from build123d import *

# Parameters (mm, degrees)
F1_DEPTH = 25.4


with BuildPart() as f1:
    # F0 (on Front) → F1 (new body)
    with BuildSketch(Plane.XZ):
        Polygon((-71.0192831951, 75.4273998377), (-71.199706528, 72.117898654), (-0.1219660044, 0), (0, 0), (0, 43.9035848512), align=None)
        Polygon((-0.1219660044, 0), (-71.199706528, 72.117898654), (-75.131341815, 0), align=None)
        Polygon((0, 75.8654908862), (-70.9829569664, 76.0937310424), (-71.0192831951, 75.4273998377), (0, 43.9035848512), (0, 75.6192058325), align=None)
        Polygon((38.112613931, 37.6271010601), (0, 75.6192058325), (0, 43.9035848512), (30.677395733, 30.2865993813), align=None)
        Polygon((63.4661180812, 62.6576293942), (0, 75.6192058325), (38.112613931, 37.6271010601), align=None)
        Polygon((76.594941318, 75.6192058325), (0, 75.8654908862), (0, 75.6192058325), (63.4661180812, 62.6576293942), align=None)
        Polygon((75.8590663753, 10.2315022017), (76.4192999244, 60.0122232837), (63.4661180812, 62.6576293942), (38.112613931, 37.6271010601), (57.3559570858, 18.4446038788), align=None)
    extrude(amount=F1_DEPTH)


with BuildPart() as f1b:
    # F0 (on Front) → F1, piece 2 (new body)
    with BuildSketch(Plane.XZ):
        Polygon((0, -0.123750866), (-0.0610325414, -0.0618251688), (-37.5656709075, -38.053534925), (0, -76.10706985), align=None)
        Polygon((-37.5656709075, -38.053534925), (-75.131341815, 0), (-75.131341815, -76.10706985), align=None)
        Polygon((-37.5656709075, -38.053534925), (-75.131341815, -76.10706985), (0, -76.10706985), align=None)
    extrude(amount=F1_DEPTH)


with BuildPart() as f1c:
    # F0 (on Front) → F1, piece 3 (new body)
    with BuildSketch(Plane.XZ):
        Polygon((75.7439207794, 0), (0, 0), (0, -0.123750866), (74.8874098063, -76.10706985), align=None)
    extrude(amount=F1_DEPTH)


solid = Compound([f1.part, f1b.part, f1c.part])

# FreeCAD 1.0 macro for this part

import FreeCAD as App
import Part
import Sketcher

V = App.Vector
Q = App.Units.Quantity


def add_polygon(sketch, points):
    """Adds a closed chain of lines whose ends are joined by coincident constraints."""
    first, n = sketch.GeometryCount, len(points)
    for a, b in zip(points, points[1:] + points[:1]):
        sketch.addGeometry(Part.LineSegment(App.Vector(*a, 0), App.Vector(*b, 0)), False)
    for i in range(n):
        sketch.addConstraint(Sketcher.Constraint("Coincident", first + i, 2, first + (i + 1) % n, 1))

doc = App.newDocument("Part")
body = doc.addObject("PartDesign::Body", "Body")

sketch1 = body.newObject("Sketcher::SketchObject", "Sketch")
sketch1.AttachmentSupport = (doc.getObject("XZ_Plane"), [""])
sketch1.MapMode = "FlatFace"
add_polygon(sketch1, [(-71.019283, 75.4274), (-71.199707, 72.117899), (-75.131342, 0), (0, 0), (0, 43.903585), (30.677396, 30.286599), (38.112614, 37.627101), (57.355957, 18.444604), (75.859066, 10.231502), (76.4193, 60.012223), (63.466118, 62.657629), (76.594941, 75.619206), (-70.982957, 76.093731)])
sketch1.addConstraint(Sketcher.Constraint("Horizontal", 2))
sketch1.addConstraint(Sketcher.Constraint("Vertical", 3))
sketch1.addConstraint(Sketcher.Constraint("Coincident", 2, 2, -1, 1))
sketch1.addConstraint(Sketcher.Constraint("Parallel", 0, 1))
sketch1.addConstraint(Sketcher.Constraint("Parallel", 4, 7))
sketch1.addConstraint(Sketcher.Constraint("Parallel", 5, 10))
sketch1.addConstraint(Sketcher.Constraint("Parallel", 1, 12))
sketch1.addConstraint(Sketcher.Constraint("DistanceY", 4, 2, 8, 2, Q("1.1703002 in")))
sketch1.addConstraint(Sketcher.Constraint("DistanceX", 2, 1, 2, 2, 75.131342))
sketch1.addConstraint(Sketcher.Constraint("DistanceY", -1, 1, 0, 2, 72.117899))
sketch1.addConstraint(Sketcher.Constraint("DistanceY", -1, 1, 4, 2, 30.286599))
sketch1.addConstraint(Sketcher.Constraint("DistanceY", -1, 1, 5, 2, 37.627101))
sketch1.addConstraint(Sketcher.Constraint("DistanceX", -1, 1, 8, 2, 76.4193))
sketch1.addConstraint(Sketcher.Constraint("DistanceY", -1, 1, 12, 2, 75.4274))
sketch1.addConstraint(Sketcher.Constraint("DistanceX", 1, 2, 6, 2, 132.487299))
sketch1.addConstraint(Sketcher.Constraint("DistanceY", 7, 2, 6, 2, 8.213102))
sketch1.addConstraint(Sketcher.Constraint("DistanceY", 7, 2, 5, 2, 27.395599))
sketch1.addConstraint(Sketcher.Constraint("DistanceY", 6, 2, 10, 2, 57.174602))
sketch1.addConstraint(Sketcher.Constraint("Distance", 1, 72.224989))
sketch1.addConstraint(Sketcher.Constraint("Distance", 11, 147.578661))
sketch1.addConstraint(Sketcher.Constraint("Distance", 12, 0.667321))
sketch1.addConstraint(Sketcher.Constraint("DistanceY", 3, 1, 3, 2, 43.903585))
sketch1.addConstraint(Sketcher.Constraint("DistanceX", -1, 1, 9, 2, 63.466118))
sketch1.addConstraint(Sketcher.Constraint("DistanceY", -1, 1, 9, 2, 62.657629))
sketch1.addConstraint(Sketcher.Constraint("DistanceX", 0, 2, 5, 2, 109.31232))
pad1 = body.newObject("PartDesign::Pad", "Pad")
pad1.Profile = sketch1
pad1.Length = Q("1 in")
body2 = doc.addObject("PartDesign::Body", "Body001")

sketch2 = body2.newObject("Sketcher::SketchObject", "Sketch001")
sketch2.AttachmentSupport = (doc.getObject("XZ_Plane001"), [""])
sketch2.MapMode = "FlatFace"
add_polygon(sketch2, [(0, -0.123751), (-0.061033, -0.061825), (-37.565671, -38.053535), (-75.131342, 0), (-75.131342, -76.10707), (0, -76.10707)])
sketch2.addConstraint(Sketcher.Constraint("Vertical", 3))
sketch2.addConstraint(Sketcher.Constraint("Horizontal", 4))
sketch2.addConstraint(Sketcher.Constraint("Vertical", 5))
sketch2.addConstraint(Sketcher.Constraint("PointOnObject", 2, 2, -1))
sketch2.addConstraint(Sketcher.Constraint("PointOnObject", 4, 2, -2))
sketch2.addConstraint(Sketcher.Constraint("DistanceX", 4, 1, 4, 2, 75.131342))
sketch2.addConstraint(Sketcher.Constraint("DistanceY", 3, 2, 3, 1, 76.10707))
sketch2.addConstraint(Sketcher.Constraint("DistanceY", 5, 1, 5, 2, 75.983319))
sketch2.addConstraint(Sketcher.Constraint("Distance", 1, 53.385091))
sketch2.addConstraint(Sketcher.Constraint("DistanceX", 1, 2, -1, 1, 37.565671))
sketch2.addConstraint(Sketcher.Constraint("DistanceX", 1, 2, 0, 2, 37.504638))
sketch2.addConstraint(Sketcher.Constraint("Distance", 0, 0.086947))
pad2 = body2.newObject("PartDesign::Pad", "Pad001")
pad2.Profile = sketch2
pad2.Length = Q("1 in")
body3 = doc.addObject("PartDesign::Body", "Body002")

sketch3 = body3.newObject("Sketcher::SketchObject", "Sketch002")
sketch3.AttachmentSupport = (doc.getObject("XZ_Plane002"), [""])
sketch3.MapMode = "FlatFace"
add_polygon(sketch3, [(75.743921, 0), (0, 0), (0, -0.123751), (74.88741, -76.10707)])
sketch3.addConstraint(Sketcher.Constraint("Horizontal", 0))
sketch3.addConstraint(Sketcher.Constraint("Vertical", 1))
sketch3.addConstraint(Sketcher.Constraint("Coincident", 0, 2, -1, 1))
sketch3.addConstraint(Sketcher.Constraint("DistanceX", 0, 2, 0, 1, 75.743921))
sketch3.addConstraint(Sketcher.Constraint("DistanceY", 1, 2, 1, 1, 0.123751))
sketch3.addConstraint(Sketcher.Constraint("Distance", 2, 106.68453))
sketch3.addConstraint(Sketcher.Constraint("Distance", 3, 76.111889))
pad3 = body3.newObject("PartDesign::Pad", "Pad002")
pad3.Profile = sketch3
pad3.Length = Q("1 in")

doc.recompute()
